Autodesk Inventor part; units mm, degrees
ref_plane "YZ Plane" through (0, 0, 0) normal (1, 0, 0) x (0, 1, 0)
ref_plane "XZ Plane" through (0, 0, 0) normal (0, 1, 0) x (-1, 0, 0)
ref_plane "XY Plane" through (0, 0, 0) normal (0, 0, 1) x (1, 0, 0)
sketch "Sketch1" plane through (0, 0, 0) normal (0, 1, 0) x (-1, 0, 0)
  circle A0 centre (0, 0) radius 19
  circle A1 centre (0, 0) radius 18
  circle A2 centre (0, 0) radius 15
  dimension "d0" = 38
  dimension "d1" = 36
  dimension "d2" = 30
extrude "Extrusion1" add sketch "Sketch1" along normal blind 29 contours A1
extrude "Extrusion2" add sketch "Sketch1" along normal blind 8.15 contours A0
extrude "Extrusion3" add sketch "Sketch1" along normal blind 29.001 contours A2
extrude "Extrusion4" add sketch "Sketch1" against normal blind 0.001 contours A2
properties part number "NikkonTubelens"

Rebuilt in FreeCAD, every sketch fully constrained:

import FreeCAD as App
import Part
import Sketcher
from FreeCAD import Vector
Q = App.Units.Quantity

doc = App.newDocument("Part")
body = doc.addObject("PartDesign::Body", "Body")

# Sketch on XZ plane
sketch1 = doc.addObject("Sketcher::SketchObject", "Sketch")
body.addObject(sketch1)
sketch1.AttachmentSupport = (doc.XZ_Plane, [""])
sketch1.MapMode = "FlatFace"
sketch1.addGeometry([
    Part.Circle(Vector(0, 0, 0), Vector(0, 0, 1), 18),
    Part.Circle(Vector(0, 0, 0), Vector(0, 0, 1), 15),
], False)
sketch1.addConstraint([
    Sketcher.Constraint("Coincident", 0, 3, -1, 1),
    Sketcher.Constraint("Coincident", 1, 3, -1, 1),
    Sketcher.Constraint("Diameter", 0, Q("36 mm")),
    Sketcher.Constraint("Diameter", 1, Q("30 mm")),
])
pad1 = doc.addObject("PartDesign::Pad", "Pad")
body.addObject(pad1)
pad1.Profile = sketch1
pad1.Length = 29
pad1.Reversed = True

# Sketch on XZ plane
sketch2 = doc.addObject("Sketcher::SketchObject", "Sketch001")
body.addObject(sketch2)
sketch2.AttachmentSupport = (doc.XZ_Plane, [""])
sketch2.MapMode = "FlatFace"
sketch2.addGeometry([
    Part.Circle(Vector(0, 0, 0), Vector(0, 0, 1), 19),
    Part.Circle(Vector(0, 0, 0), Vector(0, 0, 1), 18),
], False)
sketch2.addConstraint([
    Sketcher.Constraint("Coincident", 0, 3, -1, 1),
    Sketcher.Constraint("Coincident", 1, 3, -1, 1),
    Sketcher.Constraint("Diameter", 0, Q("38 mm")),
    Sketcher.Constraint("Diameter", 1, Q("36 mm")),
])
pad2 = doc.addObject("PartDesign::Pad", "Pad001")
body.addObject(pad2)
pad2.Profile = sketch2
pad2.Length = 8.15
pad2.Reversed = True

# Sketch on XZ plane
sketch3 = doc.addObject("Sketcher::SketchObject", "Sketch002")
body.addObject(sketch3)
sketch3.AttachmentSupport = (doc.XZ_Plane, [""])
sketch3.MapMode = "FlatFace"
sketch3.addGeometry(Part.Circle(Vector(0, 0, 0), Vector(0, 0, 1), 15), False)
sketch3.addConstraint([
    Sketcher.Constraint("Coincident", 0, 3, -1, 1),
    Sketcher.Constraint("Diameter", 0, Q("30 mm")),
])
pad3 = doc.addObject("PartDesign::Pad", "Pad002")
body.addObject(pad3)
pad3.Profile = sketch3
pad3.Length = 29.001
pad3.Reversed = True

# Sketch on XZ plane
sketch4 = doc.addObject("Sketcher::SketchObject", "Sketch003")
body.addObject(sketch4)
sketch4.AttachmentSupport = (doc.XZ_Plane, [""])
sketch4.MapMode = "FlatFace"
sketch4.addGeometry(Part.Circle(Vector(0, 0, 0), Vector(0, 0, 1), 15), False)
sketch4.addConstraint([
    Sketcher.Constraint("Coincident", 0, 3, -1, 1),
    Sketcher.Constraint("Diameter", 0, Q("30 mm")),
])
pad4 = doc.addObject("PartDesign::Pad", "Pad003")
body.addObject(pad4)
pad4.Profile = sketch4
pad4.Length = 0.001

doc.recompute()
